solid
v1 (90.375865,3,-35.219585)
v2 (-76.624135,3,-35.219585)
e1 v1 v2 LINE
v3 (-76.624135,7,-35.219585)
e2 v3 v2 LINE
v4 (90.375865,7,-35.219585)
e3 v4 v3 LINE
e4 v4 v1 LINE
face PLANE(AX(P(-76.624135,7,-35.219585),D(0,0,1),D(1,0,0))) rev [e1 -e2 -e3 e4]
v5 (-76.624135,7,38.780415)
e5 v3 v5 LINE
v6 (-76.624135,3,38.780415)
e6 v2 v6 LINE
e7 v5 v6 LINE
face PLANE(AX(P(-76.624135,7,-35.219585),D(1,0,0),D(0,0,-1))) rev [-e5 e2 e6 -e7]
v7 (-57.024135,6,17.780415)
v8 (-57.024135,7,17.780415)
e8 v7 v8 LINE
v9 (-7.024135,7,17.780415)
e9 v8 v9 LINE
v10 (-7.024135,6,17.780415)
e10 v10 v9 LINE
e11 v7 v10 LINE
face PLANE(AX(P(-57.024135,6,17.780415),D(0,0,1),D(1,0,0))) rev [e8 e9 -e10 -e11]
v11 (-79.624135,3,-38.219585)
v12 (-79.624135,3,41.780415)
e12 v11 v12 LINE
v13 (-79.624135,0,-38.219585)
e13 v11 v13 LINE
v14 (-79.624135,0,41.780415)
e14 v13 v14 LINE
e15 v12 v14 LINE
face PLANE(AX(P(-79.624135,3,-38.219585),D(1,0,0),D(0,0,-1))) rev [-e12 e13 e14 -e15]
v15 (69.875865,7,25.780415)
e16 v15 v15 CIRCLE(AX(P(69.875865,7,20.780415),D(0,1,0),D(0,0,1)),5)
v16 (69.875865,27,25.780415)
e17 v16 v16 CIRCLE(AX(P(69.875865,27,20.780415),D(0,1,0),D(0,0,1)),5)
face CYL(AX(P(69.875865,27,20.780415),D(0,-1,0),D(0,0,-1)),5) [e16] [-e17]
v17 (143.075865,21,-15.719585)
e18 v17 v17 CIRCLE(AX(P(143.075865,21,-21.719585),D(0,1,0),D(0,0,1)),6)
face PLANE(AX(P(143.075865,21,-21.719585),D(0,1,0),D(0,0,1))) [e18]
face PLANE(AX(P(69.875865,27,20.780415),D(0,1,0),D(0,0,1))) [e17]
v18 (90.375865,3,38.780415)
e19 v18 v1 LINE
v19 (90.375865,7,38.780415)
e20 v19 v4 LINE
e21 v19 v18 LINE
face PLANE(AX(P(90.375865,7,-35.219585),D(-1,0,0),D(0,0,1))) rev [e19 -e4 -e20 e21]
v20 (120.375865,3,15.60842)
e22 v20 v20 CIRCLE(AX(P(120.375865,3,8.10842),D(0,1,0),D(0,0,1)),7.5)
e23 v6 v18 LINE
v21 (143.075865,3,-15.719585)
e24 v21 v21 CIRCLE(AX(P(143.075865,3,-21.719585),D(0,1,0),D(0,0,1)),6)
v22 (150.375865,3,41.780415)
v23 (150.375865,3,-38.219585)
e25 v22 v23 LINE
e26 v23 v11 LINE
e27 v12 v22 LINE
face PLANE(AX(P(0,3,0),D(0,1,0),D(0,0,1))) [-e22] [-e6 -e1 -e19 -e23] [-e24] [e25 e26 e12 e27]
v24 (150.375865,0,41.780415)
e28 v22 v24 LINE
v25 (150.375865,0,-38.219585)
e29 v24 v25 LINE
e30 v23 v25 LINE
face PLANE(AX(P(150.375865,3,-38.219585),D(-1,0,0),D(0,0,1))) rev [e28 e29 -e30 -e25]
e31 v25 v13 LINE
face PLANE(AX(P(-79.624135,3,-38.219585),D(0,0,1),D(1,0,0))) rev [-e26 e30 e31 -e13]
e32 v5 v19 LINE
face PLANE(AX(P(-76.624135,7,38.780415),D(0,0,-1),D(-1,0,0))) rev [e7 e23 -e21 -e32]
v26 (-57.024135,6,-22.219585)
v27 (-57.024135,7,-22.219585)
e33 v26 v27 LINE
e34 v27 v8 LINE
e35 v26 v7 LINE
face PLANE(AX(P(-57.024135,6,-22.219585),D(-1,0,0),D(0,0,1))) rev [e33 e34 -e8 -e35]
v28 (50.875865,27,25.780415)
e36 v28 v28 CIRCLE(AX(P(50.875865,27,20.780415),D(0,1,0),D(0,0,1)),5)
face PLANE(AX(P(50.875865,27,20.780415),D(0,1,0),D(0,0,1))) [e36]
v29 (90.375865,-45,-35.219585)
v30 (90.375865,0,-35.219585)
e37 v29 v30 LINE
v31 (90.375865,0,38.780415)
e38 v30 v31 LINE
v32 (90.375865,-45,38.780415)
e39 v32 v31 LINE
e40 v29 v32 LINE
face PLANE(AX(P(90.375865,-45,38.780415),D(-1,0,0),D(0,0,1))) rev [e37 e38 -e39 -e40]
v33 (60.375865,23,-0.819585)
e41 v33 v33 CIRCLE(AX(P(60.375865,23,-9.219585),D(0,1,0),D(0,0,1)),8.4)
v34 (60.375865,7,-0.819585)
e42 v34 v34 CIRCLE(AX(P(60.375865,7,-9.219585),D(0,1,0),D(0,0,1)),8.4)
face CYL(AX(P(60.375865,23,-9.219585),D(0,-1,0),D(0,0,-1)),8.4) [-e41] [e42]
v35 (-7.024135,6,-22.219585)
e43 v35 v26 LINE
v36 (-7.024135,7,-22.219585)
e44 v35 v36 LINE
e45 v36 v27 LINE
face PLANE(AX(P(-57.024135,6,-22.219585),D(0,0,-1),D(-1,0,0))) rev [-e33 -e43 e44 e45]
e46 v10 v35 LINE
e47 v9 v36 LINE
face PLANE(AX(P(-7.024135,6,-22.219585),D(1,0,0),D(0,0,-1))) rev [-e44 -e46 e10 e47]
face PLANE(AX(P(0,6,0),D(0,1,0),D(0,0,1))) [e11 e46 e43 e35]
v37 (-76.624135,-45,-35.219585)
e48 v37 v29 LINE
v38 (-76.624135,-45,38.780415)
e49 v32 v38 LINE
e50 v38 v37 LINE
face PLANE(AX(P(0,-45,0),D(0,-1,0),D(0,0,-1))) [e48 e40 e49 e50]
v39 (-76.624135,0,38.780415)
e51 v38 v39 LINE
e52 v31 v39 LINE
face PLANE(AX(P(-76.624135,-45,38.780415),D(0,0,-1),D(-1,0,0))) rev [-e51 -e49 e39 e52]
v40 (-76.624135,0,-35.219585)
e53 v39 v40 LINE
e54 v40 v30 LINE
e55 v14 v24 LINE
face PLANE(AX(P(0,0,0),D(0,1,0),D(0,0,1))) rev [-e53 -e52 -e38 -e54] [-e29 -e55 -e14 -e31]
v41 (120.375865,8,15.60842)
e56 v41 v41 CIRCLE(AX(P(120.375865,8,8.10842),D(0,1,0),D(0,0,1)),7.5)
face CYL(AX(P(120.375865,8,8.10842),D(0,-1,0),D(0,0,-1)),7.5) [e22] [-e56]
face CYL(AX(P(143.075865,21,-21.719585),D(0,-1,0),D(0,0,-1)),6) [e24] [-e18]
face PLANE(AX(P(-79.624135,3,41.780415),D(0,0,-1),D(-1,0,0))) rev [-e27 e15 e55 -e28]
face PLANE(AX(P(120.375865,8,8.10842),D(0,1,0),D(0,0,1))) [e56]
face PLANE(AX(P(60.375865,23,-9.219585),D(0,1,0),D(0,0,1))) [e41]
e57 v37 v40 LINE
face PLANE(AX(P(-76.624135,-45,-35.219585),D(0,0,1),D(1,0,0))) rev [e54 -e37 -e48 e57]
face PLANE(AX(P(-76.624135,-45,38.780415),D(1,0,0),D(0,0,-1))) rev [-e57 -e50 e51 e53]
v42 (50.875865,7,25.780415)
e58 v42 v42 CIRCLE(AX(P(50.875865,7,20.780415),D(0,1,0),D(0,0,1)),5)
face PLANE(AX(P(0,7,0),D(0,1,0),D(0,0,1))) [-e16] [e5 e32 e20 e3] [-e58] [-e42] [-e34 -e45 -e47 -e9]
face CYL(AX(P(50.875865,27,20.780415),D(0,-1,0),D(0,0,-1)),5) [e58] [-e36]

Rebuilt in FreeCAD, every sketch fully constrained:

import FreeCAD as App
import Part
import Sketcher

V = App.Vector
Q = App.Units.Quantity

doc = App.newDocument("Part")
body = doc.addObject("PartDesign::Body", "Body")

# Sketch on XZ plane
sketch1 = doc.addObject("Sketcher::SketchObject", "Sketch")
body.addObject(sketch1)
sketch1.AttachmentSupport = (doc.XZ_Plane, [""])
sketch1.MapMode = "FlatFace"
sketch1.addGeometry(Part.LineSegment(V(-79.624135, -38.219585, 0), V(-79.624135, 41.780415, 0)), False)
sketch1.addGeometry(Part.LineSegment(V(-79.624135, 41.780415, 0), V(150.375865, 41.780415, 0)), False)
sketch1.addGeometry(Part.LineSegment(V(150.375865, 41.780415, 0), V(150.375865, -38.219585, 0)), False)
sketch1.addGeometry(Part.LineSegment(V(150.375865, -38.219585, 0), V(-79.624135, -38.219585, 0)), False)
sketch1.addConstraint(Sketcher.Constraint("Coincident", 0, 2, 1, 1))
sketch1.addConstraint(Sketcher.Constraint("Coincident", 1, 2, 2, 1))
sketch1.addConstraint(Sketcher.Constraint("Coincident", 2, 2, 3, 1))
sketch1.addConstraint(Sketcher.Constraint("Coincident", 3, 2, 0, 1))
sketch1.addConstraint(Sketcher.Constraint("Vertical", 0))
sketch1.addConstraint(Sketcher.Constraint("Horizontal", 1))
sketch1.addConstraint(Sketcher.Constraint("Vertical", 2))
sketch1.addConstraint(Sketcher.Constraint("Horizontal", 3))
sketch1.addConstraint(Sketcher.Constraint("DistanceX", 1, 1, 1, 2, Q("230 mm")))
sketch1.addConstraint(Sketcher.Constraint("DistanceY", 0, 1, 0, 2, Q("80 mm")))
sketch1.addConstraint(Sketcher.Constraint("DistanceX", 0, 2, -1, 1, Q("79.624135 mm")))
sketch1.addConstraint(Sketcher.Constraint("DistanceY", -1, 1, 0, 2, Q("41.780415 mm")))
pad1 = doc.addObject("PartDesign::Pad", "Pad")
body.addObject(pad1)
pad1.Profile = sketch1
pad1.Length = 3
pad1.Reversed = True

# Sketch on XZ plane
sketch2 = doc.addObject("Sketcher::SketchObject", "Sketch001")
body.addObject(sketch2)
sketch2.AttachmentSupport = (doc.XZ_Plane, [""])
sketch2.MapMode = "FlatFace"
sketch2.AttachmentOffset = App.Placement(V(0, 0, -3), App.Rotation())
sketch2.addGeometry(Part.LineSegment(V(-76.624135, -35.219585, 0), V(-76.624135, 38.780415, 0)), False)
sketch2.addGeometry(Part.LineSegment(V(-76.624135, 38.780415, 0), V(90.375865, 38.780415, 0)), False)
sketch2.addGeometry(Part.LineSegment(V(90.375865, 38.780415, 0), V(90.375865, -35.219585, 0)), False)
sketch2.addGeometry(Part.LineSegment(V(90.375865, -35.219585, 0), V(-76.624135, -35.219585, 0)), False)
sketch2.addConstraint(Sketcher.Constraint("Coincident", 0, 2, 1, 1))
sketch2.addConstraint(Sketcher.Constraint("Coincident", 1, 2, 2, 1))
sketch2.addConstraint(Sketcher.Constraint("Coincident", 2, 2, 3, 1))
sketch2.addConstraint(Sketcher.Constraint("Coincident", 3, 2, 0, 1))
sketch2.addConstraint(Sketcher.Constraint("Vertical", 0))
sketch2.addConstraint(Sketcher.Constraint("Horizontal", 1))
sketch2.addConstraint(Sketcher.Constraint("Vertical", 2))
sketch2.addConstraint(Sketcher.Constraint("Horizontal", 3))
sketch2.addConstraint(Sketcher.Constraint("DistanceX", 1, 1, 1, 2, Q("167 mm")))
sketch2.addConstraint(Sketcher.Constraint("DistanceY", 0, 1, 0, 2, Q("74 mm")))
sketch2.addConstraint(Sketcher.Constraint("DistanceX", 0, 2, -1, 1, Q("76.624135 mm")))
sketch2.addConstraint(Sketcher.Constraint("DistanceY", -1, 1, 0, 2, Q("38.780415 mm")))
pad2 = doc.addObject("PartDesign::Pad", "Pad001")
body.addObject(pad2)
pad2.Profile = sketch2
pad2.Length = 4
pad2.Reversed = True

# Sketch on XZ plane
sketch3 = doc.addObject("Sketcher::SketchObject", "Sketch002")
body.addObject(sketch3)
sketch3.AttachmentSupport = (doc.XZ_Plane, [""])
sketch3.MapMode = "FlatFace"
sketch3.AttachmentOffset = App.Placement(V(0, 0, -7), App.Rotation())
sketch3.addGeometry(Part.LineSegment(V(-57.024135, -22.219585, 0), V(-57.024135, 17.780415, 0)), False)
sketch3.addGeometry(Part.LineSegment(V(-57.024135, 17.780415, 0), V(-7.024135, 17.780415, 0)), False)
sketch3.addGeometry(Part.LineSegment(V(-7.024135, 17.780415, 0), V(-7.024135, -22.219585, 0)), False)
sketch3.addGeometry(Part.LineSegment(V(-7.024135, -22.219585, 0), V(-57.024135, -22.219585, 0)), False)
sketch3.addConstraint(Sketcher.Constraint("Coincident", 0, 2, 1, 1))
sketch3.addConstraint(Sketcher.Constraint("Coincident", 1, 2, 2, 1))
sketch3.addConstraint(Sketcher.Constraint("Coincident", 2, 2, 3, 1))
sketch3.addConstraint(Sketcher.Constraint("Coincident", 3, 2, 0, 1))
sketch3.addConstraint(Sketcher.Constraint("Vertical", 0))
sketch3.addConstraint(Sketcher.Constraint("Horizontal", 1))
sketch3.addConstraint(Sketcher.Constraint("Vertical", 2))
sketch3.addConstraint(Sketcher.Constraint("Horizontal", 3))
sketch3.addConstraint(Sketcher.Constraint("DistanceX", 1, 1, 1, 2, Q("50 mm")))
sketch3.addConstraint(Sketcher.Constraint("DistanceY", 0, 1, 0, 2, Q("40 mm")))
sketch3.addConstraint(Sketcher.Constraint("DistanceX", 0, 2, -1, 1, Q("57.024135 mm")))
sketch3.addConstraint(Sketcher.Constraint("DistanceY", -1, 1, 0, 2, Q("17.780415 mm")))
pocket1 = doc.addObject("PartDesign::Pocket", "Pocket")
body.addObject(pocket1)
pocket1.Profile = sketch3
pocket1.Length = 1
pocket1.Reversed = True

# Sketch on XZ plane
sketch4 = doc.addObject("Sketcher::SketchObject", "Sketch003")
body.addObject(sketch4)
sketch4.AttachmentSupport = (doc.XZ_Plane, [""])
sketch4.MapMode = "FlatFace"
sketch4.AttachmentOffset = App.Placement(V(0, 0, -7), App.Rotation())
sketch4.addGeometry(Part.Circle(V(60.375865, -9.219585, 0), V(0, 0, 1), 8.4), False)
sketch4.addConstraint(Sketcher.Constraint("Diameter", 0, Q("16.8 mm")))
sketch4.addConstraint(Sketcher.Constraint("DistanceX", -1, 1, 0, 3, Q("60.375865 mm")))
sketch4.addConstraint(Sketcher.Constraint("DistanceY", 0, 3, -1, 1, Q("9.219585 mm")))
pad3 = doc.addObject("PartDesign::Pad", "Pad002")
body.addObject(pad3)
pad3.Profile = sketch4
pad3.Length = 16
pad3.Reversed = True

# Sketch on XZ plane
sketch5 = doc.addObject("Sketcher::SketchObject", "Sketch004")
body.addObject(sketch5)
sketch5.AttachmentSupport = (doc.XZ_Plane, [""])
sketch5.MapMode = "FlatFace"
sketch5.AttachmentOffset = App.Placement(V(0, 0, -7), App.Rotation())
sketch5.addGeometry(Part.Circle(V(50.875865, 20.780415, 0), V(0, 0, 1), 5), False)
sketch5.addGeometry(Part.Circle(V(69.875865, 20.780415, 0), V(0, 0, 1), 5), False)
sketch5.addConstraint(Sketcher.Constraint("Equal", 0, 1))
sketch5.addConstraint(Sketcher.Constraint("Horizontal", 0, 3, 1, 3))
sketch5.addConstraint(Sketcher.Constraint("Diameter", 0, Q("10 mm")))
sketch5.addConstraint(Sketcher.Constraint("DistanceX", 0, 3, 1, 3, Q("19 mm")))
sketch5.addConstraint(Sketcher.Constraint("DistanceX", -1, 1, 0, 3, Q("50.875865 mm")))
sketch5.addConstraint(Sketcher.Constraint("DistanceY", -1, 1, 0, 3, Q("20.780415 mm")))
pad4 = doc.addObject("PartDesign::Pad", "Pad003")
body.addObject(pad4)
pad4.Profile = sketch5
pad4.Length = 20
pad4.Reversed = True

# Sketch on XZ plane
sketch6 = doc.addObject("Sketcher::SketchObject", "Sketch005")
body.addObject(sketch6)
sketch6.AttachmentSupport = (doc.XZ_Plane, [""])
sketch6.MapMode = "FlatFace"
sketch6.AttachmentOffset = App.Placement(V(0, 0, -3), App.Rotation())
sketch6.addGeometry(Part.Circle(V(143.075865, -21.719585, 0), V(0, 0, 1), 6), False)
sketch6.addConstraint(Sketcher.Constraint("Diameter", 0, Q("12 mm")))
sketch6.addConstraint(Sketcher.Constraint("DistanceX", -1, 1, 0, 3, Q("143.075865 mm")))
sketch6.addConstraint(Sketcher.Constraint("DistanceY", 0, 3, -1, 1, Q("21.719585 mm")))
pad5 = doc.addObject("PartDesign::Pad", "Pad004")
body.addObject(pad5)
pad5.Profile = sketch6
pad5.Length = 18
pad5.Reversed = True

# Sketch on XZ plane
sketch7 = doc.addObject("Sketcher::SketchObject", "Sketch006")
body.addObject(sketch7)
sketch7.AttachmentSupport = (doc.XZ_Plane, [""])
sketch7.MapMode = "FlatFace"
sketch7.AttachmentOffset = App.Placement(V(0, 0, -3), App.Rotation())
sketch7.addGeometry(Part.Circle(V(120.375865, 8.10842, 0), V(0, 0, 1), 7.5), False)
sketch7.addConstraint(Sketcher.Constraint("Diameter", 0, Q("15 mm")))
sketch7.addConstraint(Sketcher.Constraint("DistanceY", -1, 1, 0, 3, Q("8.10842 mm")))
sketch7.addConstraint(Sketcher.Constraint("DistanceX", -1, 1, 0, 3, Q("120.375865 mm")))
pad6 = doc.addObject("PartDesign::Pad", "Pad005")
body.addObject(pad6)
pad6.Profile = sketch7
pad6.Length = 5
pad6.Reversed = True

# Sketch on XZ plane
sketch8 = doc.addObject("Sketcher::SketchObject", "Sketch007")
body.addObject(sketch8)
sketch8.AttachmentSupport = (doc.XZ_Plane, [""])
sketch8.MapMode = "FlatFace"
sketch8.addGeometry(Part.LineSegment(V(-76.624135, 38.780415, 0), V(-76.624135, -35.219585, 0)), False)
sketch8.addGeometry(Part.LineSegment(V(-76.624135, -35.219585, 0), V(90.375865, -35.219585, 0)), False)
sketch8.addGeometry(Part.LineSegment(V(90.375865, -35.219585, 0), V(90.375865, 38.780415, 0)), False)
sketch8.addGeometry(Part.LineSegment(V(90.375865, 38.780415, 0), V(-76.624135, 38.780415, 0)), False)
sketch8.addConstraint(Sketcher.Constraint("Coincident", 0, 2, 1, 1))
sketch8.addConstraint(Sketcher.Constraint("Coincident", 1, 2, 2, 1))
sketch8.addConstraint(Sketcher.Constraint("Coincident", 2, 2, 3, 1))
sketch8.addConstraint(Sketcher.Constraint("Coincident", 3, 2, 0, 1))
sketch8.addConstraint(Sketcher.Constraint("Vertical", 0))
sketch8.addConstraint(Sketcher.Constraint("Horizontal", 1))
sketch8.addConstraint(Sketcher.Constraint("Vertical", 2))
sketch8.addConstraint(Sketcher.Constraint("Horizontal", 3))
sketch8.addConstraint(Sketcher.Constraint("DistanceX", 1, 1, 1, 2, Q("167 mm")))
sketch8.addConstraint(Sketcher.Constraint("DistanceY", 0, 2, 0, 1, Q("74 mm")))
sketch8.addConstraint(Sketcher.Constraint("DistanceX", 0, 2, -1, 1, Q("76.624135 mm")))
sketch8.addConstraint(Sketcher.Constraint("DistanceY", 0, 2, -1, 1, Q("35.219585 mm")))
pad7 = doc.addObject("PartDesign::Pad", "Pad006")
body.addObject(pad7)
pad7.Profile = sketch8
pad7.Length = 45

doc.recompute()
